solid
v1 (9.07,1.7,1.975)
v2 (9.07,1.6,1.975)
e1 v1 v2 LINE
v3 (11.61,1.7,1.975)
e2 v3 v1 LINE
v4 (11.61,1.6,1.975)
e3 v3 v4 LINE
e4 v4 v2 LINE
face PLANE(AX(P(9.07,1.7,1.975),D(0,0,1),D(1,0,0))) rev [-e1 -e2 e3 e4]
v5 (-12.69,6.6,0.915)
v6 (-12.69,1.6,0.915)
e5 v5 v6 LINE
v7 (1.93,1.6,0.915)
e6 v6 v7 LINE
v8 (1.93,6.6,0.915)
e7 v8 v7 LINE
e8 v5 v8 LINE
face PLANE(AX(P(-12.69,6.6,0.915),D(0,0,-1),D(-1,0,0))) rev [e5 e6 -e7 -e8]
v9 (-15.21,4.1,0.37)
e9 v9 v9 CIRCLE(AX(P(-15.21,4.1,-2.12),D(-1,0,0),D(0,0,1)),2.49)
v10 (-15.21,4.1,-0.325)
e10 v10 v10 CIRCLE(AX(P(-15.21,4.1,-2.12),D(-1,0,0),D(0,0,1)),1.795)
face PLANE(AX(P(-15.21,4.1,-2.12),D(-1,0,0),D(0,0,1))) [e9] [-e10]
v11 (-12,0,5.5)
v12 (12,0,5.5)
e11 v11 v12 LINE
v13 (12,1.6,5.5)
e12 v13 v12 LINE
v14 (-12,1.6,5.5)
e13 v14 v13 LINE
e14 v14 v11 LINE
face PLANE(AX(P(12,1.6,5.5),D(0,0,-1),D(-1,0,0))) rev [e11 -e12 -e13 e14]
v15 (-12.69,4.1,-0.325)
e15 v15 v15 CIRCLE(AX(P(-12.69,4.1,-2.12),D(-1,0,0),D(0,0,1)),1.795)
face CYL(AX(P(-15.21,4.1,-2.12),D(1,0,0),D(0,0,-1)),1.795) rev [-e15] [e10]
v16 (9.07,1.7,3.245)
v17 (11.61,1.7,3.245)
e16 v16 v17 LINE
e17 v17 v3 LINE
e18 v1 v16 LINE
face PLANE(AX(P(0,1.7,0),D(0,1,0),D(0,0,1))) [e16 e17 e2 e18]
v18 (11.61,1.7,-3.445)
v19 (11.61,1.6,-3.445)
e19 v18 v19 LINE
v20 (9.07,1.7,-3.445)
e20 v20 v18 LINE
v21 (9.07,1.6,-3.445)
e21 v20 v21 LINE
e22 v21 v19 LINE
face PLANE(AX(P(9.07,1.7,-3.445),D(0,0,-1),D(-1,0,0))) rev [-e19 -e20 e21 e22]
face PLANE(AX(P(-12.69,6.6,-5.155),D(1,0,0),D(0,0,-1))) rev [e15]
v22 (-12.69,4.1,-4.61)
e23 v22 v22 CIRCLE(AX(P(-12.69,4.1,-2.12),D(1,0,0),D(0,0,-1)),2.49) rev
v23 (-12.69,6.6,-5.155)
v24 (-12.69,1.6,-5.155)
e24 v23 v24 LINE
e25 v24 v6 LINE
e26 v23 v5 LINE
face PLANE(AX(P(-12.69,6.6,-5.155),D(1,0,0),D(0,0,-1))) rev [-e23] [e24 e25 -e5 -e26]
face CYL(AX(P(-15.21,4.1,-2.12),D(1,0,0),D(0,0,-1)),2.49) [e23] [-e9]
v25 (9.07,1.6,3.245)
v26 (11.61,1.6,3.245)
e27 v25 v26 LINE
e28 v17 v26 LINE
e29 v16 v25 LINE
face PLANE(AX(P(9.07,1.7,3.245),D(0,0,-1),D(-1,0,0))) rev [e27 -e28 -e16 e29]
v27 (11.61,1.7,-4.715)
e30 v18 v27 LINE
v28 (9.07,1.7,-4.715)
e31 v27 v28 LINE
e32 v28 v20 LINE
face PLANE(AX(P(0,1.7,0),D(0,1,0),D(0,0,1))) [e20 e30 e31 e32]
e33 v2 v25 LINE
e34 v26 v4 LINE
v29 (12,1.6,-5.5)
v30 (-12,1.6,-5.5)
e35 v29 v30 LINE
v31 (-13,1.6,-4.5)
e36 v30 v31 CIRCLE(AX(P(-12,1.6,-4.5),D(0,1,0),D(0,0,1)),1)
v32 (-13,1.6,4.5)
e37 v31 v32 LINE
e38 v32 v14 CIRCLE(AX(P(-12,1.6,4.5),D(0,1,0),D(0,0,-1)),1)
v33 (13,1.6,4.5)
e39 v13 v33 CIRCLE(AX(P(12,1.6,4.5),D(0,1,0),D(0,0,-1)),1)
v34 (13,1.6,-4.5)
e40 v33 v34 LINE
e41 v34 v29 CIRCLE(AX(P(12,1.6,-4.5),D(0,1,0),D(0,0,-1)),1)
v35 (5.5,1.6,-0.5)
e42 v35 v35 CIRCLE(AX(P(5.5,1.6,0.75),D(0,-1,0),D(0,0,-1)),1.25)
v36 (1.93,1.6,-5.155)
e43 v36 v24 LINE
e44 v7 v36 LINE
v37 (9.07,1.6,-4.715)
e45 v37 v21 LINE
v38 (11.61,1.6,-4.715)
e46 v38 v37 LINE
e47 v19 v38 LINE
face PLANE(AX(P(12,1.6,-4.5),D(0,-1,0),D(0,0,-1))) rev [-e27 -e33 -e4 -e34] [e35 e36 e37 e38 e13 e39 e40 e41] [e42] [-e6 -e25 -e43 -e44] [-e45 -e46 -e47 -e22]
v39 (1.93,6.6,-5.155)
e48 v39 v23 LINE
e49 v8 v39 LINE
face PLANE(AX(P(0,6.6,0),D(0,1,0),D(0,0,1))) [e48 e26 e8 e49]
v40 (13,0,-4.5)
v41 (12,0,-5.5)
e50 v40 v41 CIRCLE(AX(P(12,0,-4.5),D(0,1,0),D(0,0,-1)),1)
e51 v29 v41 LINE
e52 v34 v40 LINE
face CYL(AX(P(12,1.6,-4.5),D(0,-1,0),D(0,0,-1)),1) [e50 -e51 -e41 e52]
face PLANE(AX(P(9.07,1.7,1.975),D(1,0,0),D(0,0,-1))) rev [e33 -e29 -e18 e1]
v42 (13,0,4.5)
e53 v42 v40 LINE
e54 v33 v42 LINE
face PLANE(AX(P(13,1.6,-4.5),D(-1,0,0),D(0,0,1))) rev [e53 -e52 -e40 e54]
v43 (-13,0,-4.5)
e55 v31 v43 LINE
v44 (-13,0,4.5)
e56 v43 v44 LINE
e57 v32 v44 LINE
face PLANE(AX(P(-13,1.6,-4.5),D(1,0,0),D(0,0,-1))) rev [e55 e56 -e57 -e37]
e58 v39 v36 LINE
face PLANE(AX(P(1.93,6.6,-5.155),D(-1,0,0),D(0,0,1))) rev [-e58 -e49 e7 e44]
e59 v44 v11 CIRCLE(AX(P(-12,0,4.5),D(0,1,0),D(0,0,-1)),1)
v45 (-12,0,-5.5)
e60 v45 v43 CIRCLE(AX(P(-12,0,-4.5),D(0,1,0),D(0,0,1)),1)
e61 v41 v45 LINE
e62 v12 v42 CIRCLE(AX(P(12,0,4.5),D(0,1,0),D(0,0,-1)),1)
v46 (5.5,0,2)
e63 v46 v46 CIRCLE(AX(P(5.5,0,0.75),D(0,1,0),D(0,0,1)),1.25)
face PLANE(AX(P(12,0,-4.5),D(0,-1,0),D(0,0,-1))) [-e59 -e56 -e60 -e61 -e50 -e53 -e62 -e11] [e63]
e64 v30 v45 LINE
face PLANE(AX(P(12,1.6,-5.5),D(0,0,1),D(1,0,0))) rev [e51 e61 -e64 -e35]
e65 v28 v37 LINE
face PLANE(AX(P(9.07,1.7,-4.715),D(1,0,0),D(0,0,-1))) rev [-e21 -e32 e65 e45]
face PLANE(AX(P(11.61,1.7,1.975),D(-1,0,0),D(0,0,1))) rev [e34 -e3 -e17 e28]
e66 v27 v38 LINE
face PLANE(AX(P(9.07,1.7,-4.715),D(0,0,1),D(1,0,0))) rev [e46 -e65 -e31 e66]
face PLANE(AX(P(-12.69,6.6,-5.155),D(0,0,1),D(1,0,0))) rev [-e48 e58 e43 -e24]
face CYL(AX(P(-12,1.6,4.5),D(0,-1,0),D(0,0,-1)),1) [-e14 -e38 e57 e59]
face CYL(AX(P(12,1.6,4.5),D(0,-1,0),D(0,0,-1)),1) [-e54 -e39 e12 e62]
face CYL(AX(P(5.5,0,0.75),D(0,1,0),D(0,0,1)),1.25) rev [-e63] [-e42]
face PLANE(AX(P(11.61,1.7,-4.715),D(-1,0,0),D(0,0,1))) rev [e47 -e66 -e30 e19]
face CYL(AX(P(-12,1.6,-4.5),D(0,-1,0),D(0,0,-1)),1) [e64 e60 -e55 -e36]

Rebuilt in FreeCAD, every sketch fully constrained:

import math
import FreeCAD as App
import Part
import Sketcher

V = App.Vector
Q = App.Units.Quantity


def add_polygon(sketch, points):
    """Adds a closed chain of lines whose ends are joined by coincident constraints."""
    first, n = sketch.GeometryCount, len(points)
    for a, b in zip(points, points[1:] + points[:1]):
        sketch.addGeometry(Part.LineSegment(App.Vector(*a, 0), App.Vector(*b, 0)), False)
    for i in range(n):
        sketch.addConstraint(Sketcher.Constraint("Coincident", first + i, 2, first + (i + 1) % n, 1))

doc = App.newDocument("Part")
body = doc.addObject("PartDesign::Body", "Body")

# Sketch on XZ plane
sketch1 = doc.addObject("Sketcher::SketchObject", "Sketch")
body.addObject(sketch1)
sketch1.AttachmentSupport = (doc.XZ_Plane, [""])
sketch1.MapMode = "FlatFace"
sketch1.addGeometry(Part.LineSegment(V(12, -5.5, 0), V(-12, -5.5, 0)), False)
sketch1.addGeometry(Part.ArcOfCircle(Part.Circle(V(-12, -4.5, 0), V(0, 0, 1), 1), math.radians(-180), math.radians(-90)), False)
sketch1.addGeometry(Part.LineSegment(V(-13, -4.5, 0), V(-13, 4.5, 0)), False)
sketch1.addGeometry(Part.ArcOfCircle(Part.Circle(V(-12, 4.5, 0), V(0, 0, 1), 1), math.radians(90), math.radians(180)), False)
sketch1.addGeometry(Part.LineSegment(V(-12, 5.5, 0), V(12, 5.5, 0)), False)
sketch1.addGeometry(Part.ArcOfCircle(Part.Circle(V(12, 4.5, 0), V(0, 0, 1), 1), math.radians(0), math.radians(90)), False)
sketch1.addGeometry(Part.LineSegment(V(13, 4.5, 0), V(13, -4.5, 0)), False)
sketch1.addGeometry(Part.ArcOfCircle(Part.Circle(V(12, -4.5, 0), V(0, 0, 1), 1), math.radians(-90), math.radians(0)), False)
sketch1.addConstraint(Sketcher.Constraint("Tangent", 0, 2, 1, 2))
sketch1.addConstraint(Sketcher.Constraint("Tangent", 1, 1, 2, 1))
sketch1.addConstraint(Sketcher.Constraint("Tangent", 2, 2, 3, 2))
sketch1.addConstraint(Sketcher.Constraint("Tangent", 3, 1, 4, 1))
sketch1.addConstraint(Sketcher.Constraint("Tangent", 4, 2, 5, 2))
sketch1.addConstraint(Sketcher.Constraint("Tangent", 5, 1, 6, 1))
sketch1.addConstraint(Sketcher.Constraint("Tangent", 6, 2, 7, 2))
sketch1.addConstraint(Sketcher.Constraint("Tangent", 7, 1, 0, 1))
sketch1.addConstraint(Sketcher.Constraint("Horizontal", 0))
sketch1.addConstraint(Sketcher.Constraint("Vertical", 2))
sketch1.addConstraint(Sketcher.Constraint("Horizontal", 4))
sketch1.addConstraint(Sketcher.Constraint("Vertical", 6))
sketch1.addConstraint(Sketcher.Constraint("Equal", 1, 3))
sketch1.addConstraint(Sketcher.Constraint("Equal", 3, 5))
sketch1.addConstraint(Sketcher.Constraint("Equal", 5, 7))
sketch1.addConstraint(Sketcher.Constraint("Symmetric", 1, 3, 5, 3, -1, 1))
sketch1.addConstraint(Sketcher.Constraint("Radius", 1, Q("1 mm")))
sketch1.addConstraint(Sketcher.Constraint("DistanceX", 0, 2, 0, 1, Q("24 mm")))
sketch1.addConstraint(Sketcher.Constraint("DistanceY", 2, 1, 2, 2, Q("9 mm")))
pad1 = doc.addObject("PartDesign::Pad", "Pad")
body.addObject(pad1)
pad1.Profile = sketch1
pad1.Length = 1.6
pad1.Reversed = True

# Sketch on XZ plane
sketch2 = doc.addObject("Sketcher::SketchObject", "Sketch001")
body.addObject(sketch2)
sketch2.AttachmentSupport = (doc.XZ_Plane, [""])
sketch2.MapMode = "FlatFace"
sketch2.AttachmentOffset = App.Placement(V(0, 0, -1.6), App.Rotation())
add_polygon(sketch2, [(9.07, -4.715), (9.07, -3.445), (11.61, -3.445), (11.61, -4.715)])  # lines 0-3
add_polygon(sketch2, [(9.07, 1.975), (9.07, 3.245), (11.61, 3.245), (11.61, 1.975)])  # lines 4-7
sketch2.addConstraint(Sketcher.Constraint("Vertical", 0))
sketch2.addConstraint(Sketcher.Constraint("Horizontal", 1))
sketch2.addConstraint(Sketcher.Constraint("Vertical", 2))
sketch2.addConstraint(Sketcher.Constraint("Horizontal", 3))
sketch2.addConstraint(Sketcher.Constraint("Vertical", 4))
sketch2.addConstraint(Sketcher.Constraint("Horizontal", 5))
sketch2.addConstraint(Sketcher.Constraint("Vertical", 6))
sketch2.addConstraint(Sketcher.Constraint("Horizontal", 7))
sketch2.addConstraint(Sketcher.Constraint("Vertical", 3, 2, 4, 2))
sketch2.addConstraint(Sketcher.Constraint("Vertical", 2, 2, 5, 2))
sketch2.addConstraint(Sketcher.Constraint("Equal", 2, 4))
sketch2.addConstraint(Sketcher.Constraint("DistanceX", 1, 1, 1, 2, Q("2.54 mm")))
sketch2.addConstraint(Sketcher.Constraint("DistanceY", 0, 1, 0, 2, Q("1.27 mm")))
sketch2.addConstraint(Sketcher.Constraint("DistanceX", -1, 1, 0, 2, Q("9.07 mm")))
sketch2.addConstraint(Sketcher.Constraint("DistanceY", 0, 2, 4, 2, Q("6.69 mm")))
sketch2.addConstraint(Sketcher.Constraint("DistanceY", 0, 2, -1, 1, Q("3.445 mm")))
pad2 = doc.addObject("PartDesign::Pad", "Pad001")
body.addObject(pad2)
pad2.Profile = sketch2
pad2.Length = 0.1
pad2.Reversed = True

# Sketch on XZ plane
sketch3 = doc.addObject("Sketcher::SketchObject", "Sketch002")
body.addObject(sketch3)
sketch3.AttachmentSupport = (doc.XZ_Plane, [""])
sketch3.MapMode = "FlatFace"
sketch3.AttachmentOffset = App.Placement(V(0, 0, -1.6), App.Rotation())
add_polygon(sketch3, [(-12.69, -5.155), (-12.69, 0.915), (1.93, 0.915), (1.93, -5.155)])  # lines 0-3
sketch3.addConstraint(Sketcher.Constraint("Vertical", 0))
sketch3.addConstraint(Sketcher.Constraint("Horizontal", 1))
sketch3.addConstraint(Sketcher.Constraint("Vertical", 2))
sketch3.addConstraint(Sketcher.Constraint("Horizontal", 3))
sketch3.addConstraint(Sketcher.Constraint("DistanceX", 1, 1, 1, 2, Q("14.62 mm")))
sketch3.addConstraint(Sketcher.Constraint("DistanceY", 0, 1, 0, 2, Q("6.07 mm")))
sketch3.addConstraint(Sketcher.Constraint("DistanceX", 0, 2, -1, 1, Q("12.69 mm")))
sketch3.addConstraint(Sketcher.Constraint("DistanceY", -1, 1, 0, 2, Q("0.915 mm")))
pad3 = doc.addObject("PartDesign::Pad", "Pad002")
body.addObject(pad3)
pad3.Profile = sketch3
pad3.Length = 5
pad3.Reversed = True

# Sketch on YZ plane
sketch4 = doc.addObject("Sketcher::SketchObject", "Sketch003")
body.addObject(sketch4)
sketch4.AttachmentSupport = (doc.YZ_Plane, [""])
sketch4.MapMode = "FlatFace"
sketch4.AttachmentOffset = App.Placement(V(0, 0, -12.69), App.Rotation())
sketch4.addGeometry(Part.Circle(V(4.1, -2.12, 0), V(0, 0, 1), 2.49), False)
sketch4.addGeometry(Part.Circle(V(4.1, -2.12, 0), V(0, 0, 1), 1.795), False)
sketch4.addConstraint(Sketcher.Constraint("Coincident", 1, 3, 0, 3))
sketch4.addConstraint(Sketcher.Constraint("Diameter", 0, Q("4.98 mm")))
sketch4.addConstraint(Sketcher.Constraint("Diameter", 1, Q("3.59 mm")))
sketch4.addConstraint(Sketcher.Constraint("DistanceX", -1, 1, 0, 3, Q("4.1 mm")))
sketch4.addConstraint(Sketcher.Constraint("DistanceY", 0, 3, -1, 1, Q("2.12 mm")))
pad4 = doc.addObject("PartDesign::Pad", "Pad003")
body.addObject(pad4)
pad4.Profile = sketch4
pad4.Length = 2.52
pad4.Reversed = True

# Sketch on XZ plane
sketch5 = doc.addObject("Sketcher::SketchObject", "Sketch004")
body.addObject(sketch5)
sketch5.AttachmentSupport = (doc.XZ_Plane, [""])
sketch5.MapMode = "FlatFace"
sketch5.AttachmentOffset = App.Placement(V(0, 0, -1.6), App.Rotation())
sketch5.addGeometry(Part.Circle(V(5.5, 0.75, 0), V(0, 0, 1), 1.25), False)
sketch5.addConstraint(Sketcher.Constraint("Diameter", 0, Q("2.5 mm")))
sketch5.addConstraint(Sketcher.Constraint("DistanceX", -1, 1, 0, 3, Q("5.5 mm")))
sketch5.addConstraint(Sketcher.Constraint("DistanceY", -1, 1, 0, 3, Q("0.75 mm")))
pocket1 = doc.addObject("PartDesign::Pocket", "Pocket")
body.addObject(pocket1)
pocket1.Profile = sketch5
pocket1.Type = "ThroughAll"
pocket1.Midplane = True

doc.recompute()
